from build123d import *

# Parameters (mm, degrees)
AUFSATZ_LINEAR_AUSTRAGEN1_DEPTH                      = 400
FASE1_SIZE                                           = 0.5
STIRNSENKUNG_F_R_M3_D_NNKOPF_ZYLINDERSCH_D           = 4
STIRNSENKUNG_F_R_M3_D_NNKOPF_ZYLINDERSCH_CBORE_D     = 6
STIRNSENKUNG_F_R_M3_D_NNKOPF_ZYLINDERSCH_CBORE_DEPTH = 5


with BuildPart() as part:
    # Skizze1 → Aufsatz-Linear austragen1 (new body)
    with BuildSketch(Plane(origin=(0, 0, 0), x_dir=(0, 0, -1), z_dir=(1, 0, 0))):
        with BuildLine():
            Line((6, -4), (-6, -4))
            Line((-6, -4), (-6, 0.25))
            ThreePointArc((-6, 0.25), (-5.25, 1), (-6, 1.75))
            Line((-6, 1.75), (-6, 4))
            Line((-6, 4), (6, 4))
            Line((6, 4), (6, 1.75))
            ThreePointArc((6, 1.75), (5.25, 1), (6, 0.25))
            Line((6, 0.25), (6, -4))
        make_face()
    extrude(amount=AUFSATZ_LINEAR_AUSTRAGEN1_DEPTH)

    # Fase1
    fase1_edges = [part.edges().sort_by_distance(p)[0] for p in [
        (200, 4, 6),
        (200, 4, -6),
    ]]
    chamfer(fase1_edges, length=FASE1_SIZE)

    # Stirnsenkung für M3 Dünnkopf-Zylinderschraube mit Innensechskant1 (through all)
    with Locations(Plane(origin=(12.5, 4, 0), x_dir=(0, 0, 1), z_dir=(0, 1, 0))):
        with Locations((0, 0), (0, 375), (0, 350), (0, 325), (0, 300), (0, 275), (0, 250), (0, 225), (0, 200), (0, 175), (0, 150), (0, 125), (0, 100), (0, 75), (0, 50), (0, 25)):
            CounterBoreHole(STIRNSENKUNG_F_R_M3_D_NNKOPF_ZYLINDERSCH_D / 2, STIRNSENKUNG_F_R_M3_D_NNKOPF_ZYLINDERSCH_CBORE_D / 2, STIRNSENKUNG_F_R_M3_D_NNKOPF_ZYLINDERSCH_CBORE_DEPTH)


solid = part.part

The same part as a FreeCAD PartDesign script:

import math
import FreeCAD as App
import Part
import Sketcher
from FreeCAD import Vector
Q = App.Units.Quantity


def edges_at(feature, points):
    """Names of the edges that pass closest to the given points."""
    edges = feature.Shape.Edges
    near = lambda p: min(range(len(edges)), key=lambda i: edges[i].distToShape(Part.Vertex(*p))[0])
    return sorted({f"Edge{near(p) + 1}" for p in points})

doc = App.newDocument("Part")
params = doc.addObject("Spreadsheet::Sheet", "Params")
for row, (alias, value) in enumerate([
    ("sketch1_height", "12 mm"),
    ("sketch1_radius", "0.75 mm"),
    ("pad1_length", "400 mm"),
    ("chamfer_size", "0.5 mm"),
    ("sketch2_diameter", "4 mm"),
    ("hole_diameter", "4 mm"),
    ("hole_cbore_diameter", "6 mm"),
    ("hole_cbore_depth", "5 mm"),
], start=1):
    params.set(f"A{row}", alias)
    params.set(f"B{row}", "=" + value)
    params.setAlias(f"B{row}", alias)

body = doc.addObject("PartDesign::Body", "Body")

# Sketch on YZ plane
sketch1 = doc.addObject("Sketcher::SketchObject", "Sketch")
body.addObject(sketch1)
sketch1.AttachmentSupport = (doc.YZ_Plane, [""])
sketch1.MapMode = "FlatFace"
sketch1.addGeometry([
    Part.LineSegment(Vector(-4, 6, 0), Vector(-4, -6, 0)),  # 0
    Part.LineSegment(Vector(-4, -6, 0), Vector(0.25, -6, 0)),  # 1
    Part.ArcOfCircle(Part.Circle(Vector(1, -6, 0), Vector(0, 0, 1), 0.75), math.radians(0), math.radians(180)),  # 2
    Part.LineSegment(Vector(1.75, -6, 0), Vector(4, -6, 0)),  # 3
    Part.LineSegment(Vector(4, -6, 0), Vector(4, 6, 0)),  # 4
    Part.LineSegment(Vector(4, 6, 0), Vector(1.75, 6, 0)),  # 5
    Part.ArcOfCircle(Part.Circle(Vector(1, 6, 0), Vector(0, 0, 1), 0.75), math.radians(180), math.radians(360)),  # 6
    Part.LineSegment(Vector(0.25, 6, 0), Vector(-4, 6, 0)),  # 7
], False)
sketch1.addConstraint([
    Sketcher.Constraint("Coincident", 0, 2, 1, 1),
    Sketcher.Constraint("Coincident", 1, 2, 2, 2),
    Sketcher.Constraint("Coincident", 2, 1, 3, 1),
    Sketcher.Constraint("Coincident", 3, 2, 4, 1),
    Sketcher.Constraint("Coincident", 4, 2, 5, 1),
    Sketcher.Constraint("Coincident", 5, 2, 6, 2),
    Sketcher.Constraint("Coincident", 6, 1, 7, 1),
    Sketcher.Constraint("Coincident", 7, 2, 0, 1),
    Sketcher.Constraint("Vertical", 0),
    Sketcher.Constraint("Horizontal", 1),
    Sketcher.Constraint("Horizontal", 3),
    Sketcher.Constraint("Vertical", 4),
    Sketcher.Constraint("Horizontal", 5),
    Sketcher.Constraint("Horizontal", 7),
    Sketcher.Constraint("Equal", 2, 6),
    Sketcher.Constraint("Symmetric", 0, 2, 4, 2, -1, 1),
    Sketcher.Constraint("Symmetric", 2, 3, 6, 3, -1),
    Sketcher.Constraint("Horizontal", 2, 3, 0, 2),
    Sketcher.Constraint("Horizontal", 1, 2, 2, 1),
    Sketcher.Constraint("Horizontal", 5, 2, 6, 1),
    Sketcher.Constraint("DistanceY", 0, 2, 0, 1, Q("12 mm")),
    Sketcher.Constraint("Radius", 2, Q("0.75 mm")),
    Sketcher.Constraint("DistanceX", -1, 1, 2, 3, Q("1 mm")),
    Sketcher.Constraint("DistanceX", 0, 2, -1, 1, Q("4 mm")),
])
sketch1.setExpression("Constraints[20]", "Params.sketch1_height")
sketch1.setExpression("Constraints[21]", "Params.sketch1_radius")
pad1 = doc.addObject("PartDesign::Pad", "Pad")
body.addObject(pad1)
pad1.Profile = sketch1
pad1.setExpression("Length", "Params.pad1_length")
doc.recompute()

chamfer = doc.addObject("PartDesign::Chamfer", "Chamfer")
body.addObject(chamfer)
chamfer.Base = (pad1, edges_at(pad1, [(200, 4, 6), (200, 4, -6)]))
chamfer.setExpression("Size", "Params.chamfer_size")

# Sketch on XZ plane
sketch2 = doc.addObject("Sketcher::SketchObject", "Sketch001")
body.addObject(sketch2)
sketch2.AttachmentSupport = (doc.XZ_Plane, [""])
sketch2.MapMode = "FlatFace"
sketch2.AttachmentOffset = App.Placement(Vector(0, 0, -4), App.Rotation())
sketch2.addGeometry([
    Part.Circle(Vector(12.5, 0, 0), Vector(0, 0, 1), 2),  # 0
    Part.Circle(Vector(387.5, 0, 0), Vector(0, 0, 1), 2),  # 1
    Part.Circle(Vector(362.5, 0, 0), Vector(0, 0, 1), 2),  # 2
    Part.Circle(Vector(337.5, 0, 0), Vector(0, 0, 1), 2),  # 3
    Part.Circle(Vector(312.5, 0, 0), Vector(0, 0, 1), 2),  # 4
    Part.Circle(Vector(287.5, 0, 0), Vector(0, 0, 1), 2),  # 5
    Part.Circle(Vector(262.5, 0, 0), Vector(0, 0, 1), 2),  # 6
    Part.Circle(Vector(237.5, 0, 0), Vector(0, 0, 1), 2),  # 7
    Part.Circle(Vector(212.5, 0, 0), Vector(0, 0, 1), 2),  # 8
    Part.Circle(Vector(187.5, 0, 0), Vector(0, 0, 1), 2),  # 9
    Part.Circle(Vector(162.5, 0, 0), Vector(0, 0, 1), 2),  # 10
    Part.Circle(Vector(137.5, 0, 0), Vector(0, 0, 1), 2),  # 11
    Part.Circle(Vector(112.5, 0, 0), Vector(0, 0, 1), 2),  # 12
    Part.Circle(Vector(87.5, 0, 0), Vector(0, 0, 1), 2),  # 13
    Part.Circle(Vector(62.5, 0, 0), Vector(0, 0, 1), 2),  # 14
    Part.Circle(Vector(37.5, 0, 0), Vector(0, 0, 1), 2),  # 15
], False)
sketch2.addConstraint([
    Sketcher.Constraint("Equal", 0, 1),
    Sketcher.Constraint("Equal", 1, 2),
    Sketcher.Constraint("Equal", 2, 3),
    Sketcher.Constraint("Equal", 3, 4),
    Sketcher.Constraint("Equal", 4, 5),
    Sketcher.Constraint("Equal", 5, 6),
    Sketcher.Constraint("Equal", 6, 7),
    Sketcher.Constraint("Equal", 7, 8),
    Sketcher.Constraint("Equal", 8, 9),
    Sketcher.Constraint("Equal", 9, 10),
    Sketcher.Constraint("Equal", 10, 11),
    Sketcher.Constraint("Equal", 11, 12),
    Sketcher.Constraint("Equal", 12, 13),
    Sketcher.Constraint("Equal", 13, 14),
    Sketcher.Constraint("Equal", 14, 15),
    Sketcher.Constraint("PointOnObject", 0, 3, -1),
    Sketcher.Constraint("PointOnObject", 1, 3, -1),
    Sketcher.Constraint("PointOnObject", 2, 3, -1),
    Sketcher.Constraint("PointOnObject", 3, 3, -1),
    Sketcher.Constraint("PointOnObject", 4, 3, -1),
    Sketcher.Constraint("PointOnObject", 5, 3, -1),
    Sketcher.Constraint("PointOnObject", 6, 3, -1),
    Sketcher.Constraint("PointOnObject", 7, 3, -1),
    Sketcher.Constraint("PointOnObject", 8, 3, -1),
    Sketcher.Constraint("PointOnObject", 9, 3, -1),
    Sketcher.Constraint("PointOnObject", 10, 3, -1),
    Sketcher.Constraint("PointOnObject", 11, 3, -1),
    Sketcher.Constraint("PointOnObject", 12, 3, -1),
    Sketcher.Constraint("PointOnObject", 13, 3, -1),
    Sketcher.Constraint("PointOnObject", 14, 3, -1),
    Sketcher.Constraint("PointOnObject", 15, 3, -1),
    Sketcher.Constraint("Diameter", 0, Q("4 mm")),
    Sketcher.Constraint("DistanceX", 0, 3, 1, 3, Q("375 mm")),
    Sketcher.Constraint("DistanceX", 2, 3, 1, 3, Q("25 mm")),
    Sketcher.Constraint("DistanceX", 3, 3, 2, 3, Q("25 mm")),
    Sketcher.Constraint("DistanceX", 4, 3, 3, 3, Q("25 mm")),
    Sketcher.Constraint("DistanceX", 5, 3, 4, 3, Q("25 mm")),
    Sketcher.Constraint("DistanceX", 6, 3, 5, 3, Q("25 mm")),
    Sketcher.Constraint("DistanceX", 7, 3, 6, 3, Q("25 mm")),
    Sketcher.Constraint("DistanceX", 8, 3, 7, 3, Q("25 mm")),
    Sketcher.Constraint("DistanceX", 9, 3, 8, 3, Q("25 mm")),
    Sketcher.Constraint("DistanceX", 10, 3, 9, 3, Q("25 mm")),
    Sketcher.Constraint("DistanceX", 11, 3, 10, 3, Q("25 mm")),
    Sketcher.Constraint("DistanceX", 12, 3, 11, 3, Q("25 mm")),
    Sketcher.Constraint("DistanceX", 13, 3, 12, 3, Q("25 mm")),
    Sketcher.Constraint("DistanceX", 14, 3, 13, 3, Q("25 mm")),
    Sketcher.Constraint("DistanceX", 0, 3, 15, 3, Q("25 mm")),
    Sketcher.Constraint("DistanceX", -1, 1, 0, 3, Q("12.5 mm")),
])
sketch2.setExpression("Constraints[31]", "Params.sketch2_diameter")
doc.recompute()
hole = doc.addObject("PartDesign::Hole", "Hole")
body.addObject(hole)
hole.Profile = sketch2
hole.ThreadType = "None"
hole.setExpression("Diameter", "Params.hole_diameter")
hole.DepthType = "ThroughAll"
hole.HoleCutType = "Counterbore"
hole.setExpression("HoleCutDiameter", "Params.hole_cbore_diameter")
hole.setExpression("HoleCutDepth", "Params.hole_cbore_depth")
hole.Reversed = True

doc.recompute()
